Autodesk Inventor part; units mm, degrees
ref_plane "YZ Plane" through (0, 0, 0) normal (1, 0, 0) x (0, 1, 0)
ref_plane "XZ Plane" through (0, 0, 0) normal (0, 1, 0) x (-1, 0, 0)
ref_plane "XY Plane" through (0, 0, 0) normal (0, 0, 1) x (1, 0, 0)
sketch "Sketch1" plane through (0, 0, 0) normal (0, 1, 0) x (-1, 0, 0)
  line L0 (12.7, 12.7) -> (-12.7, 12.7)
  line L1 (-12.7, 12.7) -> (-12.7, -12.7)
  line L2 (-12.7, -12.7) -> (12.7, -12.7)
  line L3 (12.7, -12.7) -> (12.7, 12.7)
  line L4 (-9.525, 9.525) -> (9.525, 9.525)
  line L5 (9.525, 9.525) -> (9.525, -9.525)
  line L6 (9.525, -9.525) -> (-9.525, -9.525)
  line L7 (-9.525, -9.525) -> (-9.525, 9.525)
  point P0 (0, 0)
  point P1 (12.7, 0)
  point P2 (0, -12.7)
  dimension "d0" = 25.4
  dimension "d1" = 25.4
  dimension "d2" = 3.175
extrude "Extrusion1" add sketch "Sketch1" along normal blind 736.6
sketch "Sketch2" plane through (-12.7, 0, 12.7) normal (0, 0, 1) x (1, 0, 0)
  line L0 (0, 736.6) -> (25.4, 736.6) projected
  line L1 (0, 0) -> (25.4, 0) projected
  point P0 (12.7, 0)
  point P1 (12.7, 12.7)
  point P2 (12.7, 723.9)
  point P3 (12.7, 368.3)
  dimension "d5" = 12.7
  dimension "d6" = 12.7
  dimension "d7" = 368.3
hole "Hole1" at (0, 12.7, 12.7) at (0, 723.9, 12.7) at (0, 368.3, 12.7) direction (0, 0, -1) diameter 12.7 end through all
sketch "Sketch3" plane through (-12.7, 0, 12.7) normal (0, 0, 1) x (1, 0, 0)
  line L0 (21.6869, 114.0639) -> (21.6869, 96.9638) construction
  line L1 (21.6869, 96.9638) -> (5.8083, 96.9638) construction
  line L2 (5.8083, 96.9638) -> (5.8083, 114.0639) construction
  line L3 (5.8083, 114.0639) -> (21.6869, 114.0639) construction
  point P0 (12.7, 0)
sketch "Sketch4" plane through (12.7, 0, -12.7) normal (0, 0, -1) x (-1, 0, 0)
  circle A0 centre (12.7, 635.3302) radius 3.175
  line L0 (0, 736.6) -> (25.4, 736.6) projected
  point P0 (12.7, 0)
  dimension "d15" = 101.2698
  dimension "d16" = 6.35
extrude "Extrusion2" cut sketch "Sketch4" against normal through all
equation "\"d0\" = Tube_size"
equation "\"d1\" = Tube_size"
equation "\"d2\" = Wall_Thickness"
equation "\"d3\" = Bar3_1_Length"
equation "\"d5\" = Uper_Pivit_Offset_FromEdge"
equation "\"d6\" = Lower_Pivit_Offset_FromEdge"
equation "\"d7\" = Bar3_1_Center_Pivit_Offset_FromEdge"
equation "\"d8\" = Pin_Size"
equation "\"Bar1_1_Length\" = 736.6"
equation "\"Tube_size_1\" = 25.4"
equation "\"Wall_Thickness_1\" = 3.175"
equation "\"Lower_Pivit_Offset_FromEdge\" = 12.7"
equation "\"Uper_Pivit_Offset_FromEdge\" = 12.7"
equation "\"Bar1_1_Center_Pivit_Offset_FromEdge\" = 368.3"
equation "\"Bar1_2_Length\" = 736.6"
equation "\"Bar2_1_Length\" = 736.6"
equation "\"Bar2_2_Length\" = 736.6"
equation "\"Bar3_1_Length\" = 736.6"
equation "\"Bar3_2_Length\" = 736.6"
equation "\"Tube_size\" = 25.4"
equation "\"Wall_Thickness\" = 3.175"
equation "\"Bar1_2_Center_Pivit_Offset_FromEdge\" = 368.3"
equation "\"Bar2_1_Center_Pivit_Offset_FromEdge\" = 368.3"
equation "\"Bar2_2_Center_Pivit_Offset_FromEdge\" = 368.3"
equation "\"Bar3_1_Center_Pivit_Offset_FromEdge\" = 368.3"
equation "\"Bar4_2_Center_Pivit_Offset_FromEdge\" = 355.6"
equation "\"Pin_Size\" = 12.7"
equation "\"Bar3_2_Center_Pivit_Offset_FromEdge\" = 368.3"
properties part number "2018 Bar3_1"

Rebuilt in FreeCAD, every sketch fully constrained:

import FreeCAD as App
import Part
import Sketcher

V = App.Vector
Q = App.Units.Quantity

doc = App.newDocument("Part")
body = doc.addObject("PartDesign::Body", "Body")

# Sketch on XZ plane
sketch1 = body.newObject("Sketcher::SketchObject", "Sketch")
sketch1.AttachmentSupport = (doc.getObject("XZ_Plane"), [""])
sketch1.MapMode = "FlatFace"
sketch1.addGeometry(Part.LineSegment(V(-13, -13, 0), V(-13, 13, 0)), False)
sketch1.addGeometry(Part.LineSegment(V(-13, 13, 0), V(13, 13, 0)), False)
sketch1.addGeometry(Part.LineSegment(V(13, 13, 0), V(13, -13, 0)), False)
sketch1.addGeometry(Part.LineSegment(V(13, -13, 0), V(-13, -13, 0)), False)
sketch1.addGeometry(Part.LineSegment(V(10, -10, 0), V(10, 10, 0)), False)
sketch1.addGeometry(Part.LineSegment(V(10, 10, 0), V(-10, 10, 0)), False)
sketch1.addGeometry(Part.LineSegment(V(-10, 10, 0), V(-10, -10, 0)), False)
sketch1.addGeometry(Part.LineSegment(V(-10, -10, 0), V(10, -10, 0)), False)
sketch1.addConstraint(Sketcher.Constraint("Coincident", 0, 2, 1, 1))
sketch1.addConstraint(Sketcher.Constraint("Coincident", 1, 2, 2, 1))
sketch1.addConstraint(Sketcher.Constraint("Coincident", 2, 2, 3, 1))
sketch1.addConstraint(Sketcher.Constraint("Coincident", 3, 2, 0, 1))
sketch1.addConstraint(Sketcher.Constraint("Coincident", 4, 2, 5, 1))
sketch1.addConstraint(Sketcher.Constraint("Coincident", 5, 2, 6, 1))
sketch1.addConstraint(Sketcher.Constraint("Coincident", 6, 2, 7, 1))
sketch1.addConstraint(Sketcher.Constraint("Coincident", 7, 2, 4, 1))
sketch1.addConstraint(Sketcher.Constraint("Vertical", 0))
sketch1.addConstraint(Sketcher.Constraint("Horizontal", 1))
sketch1.addConstraint(Sketcher.Constraint("Vertical", 2))
sketch1.addConstraint(Sketcher.Constraint("Horizontal", 3))
sketch1.addConstraint(Sketcher.Constraint("Vertical", 4))
sketch1.addConstraint(Sketcher.Constraint("Horizontal", 5))
sketch1.addConstraint(Sketcher.Constraint("Vertical", 6))
sketch1.addConstraint(Sketcher.Constraint("Horizontal", 7))
sketch1.addConstraint(Sketcher.Constraint("Symmetric", 0, 2, 2, 2, -1, 1))
sketch1.addConstraint(Sketcher.Constraint("Symmetric", 4, 2, 6, 2, -1, 1))
sketch1.addConstraint(Sketcher.Constraint("Equal", 3, 0))
sketch1.addConstraint(Sketcher.Constraint("Equal", 7, 4))
sketch1.addConstraint(Sketcher.Constraint("DistanceX", 1, 1, 1, 2, Q("1 in")))
sketch1.addConstraint(Sketcher.Constraint("DistanceX", 4, 2, 1, 2, Q("0.125 in")))
pad1 = body.newObject("PartDesign::Pad", "Pad")
pad1.Profile = sketch1
pad1.Length = Q("29 in")
pad1.Reversed = True

# Sketch on XY plane
sketch2 = body.newObject("Sketcher::SketchObject", "Sketch001")
sketch2.AttachmentSupport = (doc.getObject("XY_Plane"), [""])
sketch2.MapMode = "FlatFace"
sketch2.AttachmentOffset = App.Placement(V(0, 0, 0.5 * 25.4), App.Rotation())
sketch2.addGeometry(Part.Circle(V(0, 13, 0), V(0, 0, 1), 6), False)
sketch2.addGeometry(Part.Circle(V(0, 724, 0), V(0, 0, 1), 6), False)
sketch2.addGeometry(Part.Circle(V(0, 368, 0), V(0, 0, 1), 6), False)
sketch2.addConstraint(Sketcher.Constraint("Equal", 0, 1))
sketch2.addConstraint(Sketcher.Constraint("Equal", 1, 2))
sketch2.addConstraint(Sketcher.Constraint("PointOnObject", 0, 3, -2))
sketch2.addConstraint(Sketcher.Constraint("PointOnObject", 1, 3, -2))
sketch2.addConstraint(Sketcher.Constraint("PointOnObject", 2, 3, -2))
sketch2.addConstraint(Sketcher.Constraint("Diameter", 0, Q("0.5 in")))
sketch2.addConstraint(Sketcher.Constraint("DistanceY", 0, 3, 1, 3, Q("28 in")))
sketch2.addConstraint(Sketcher.Constraint("DistanceY", 2, 3, 1, 3, Q("14 in")))
sketch2.addConstraint(Sketcher.Constraint("DistanceY", -1, 1, 0, 3, Q("0.5 in")))
doc.recompute()
hole = body.newObject("PartDesign::Hole", "Hole")
hole.Profile = sketch2
hole.ThreadType = "None"
hole.Diameter = Q("0.5 in")
hole.DepthType = "ThroughAll"

# Sketch on XY plane
sketch3 = body.newObject("Sketcher::SketchObject", "Sketch002")
sketch3.AttachmentSupport = (doc.getObject("XY_Plane"), [""])
sketch3.MapMode = "FlatFace"
sketch3.AttachmentOffset = App.Placement(V(0, 0, -0.5 * 25.4), App.Rotation())
sketch3.addGeometry(Part.Circle(V(0, 635.3, 0), V(0, 0, 1), 3.2), False)
sketch3.addConstraint(Sketcher.Constraint("PointOnObject", 0, 3, -2))
sketch3.addConstraint(Sketcher.Constraint("Diameter", 0, Q("0.25 in")))
sketch3.addConstraint(Sketcher.Constraint("DistanceY", -1, 1, 0, 3, Q("25.013 in")))
pocket1 = body.newObject("PartDesign::Pocket", "Pocket")
pocket1.Profile = sketch3
pocket1.Type = "ThroughAll"
pocket1.Reversed = True

doc.recompute()
